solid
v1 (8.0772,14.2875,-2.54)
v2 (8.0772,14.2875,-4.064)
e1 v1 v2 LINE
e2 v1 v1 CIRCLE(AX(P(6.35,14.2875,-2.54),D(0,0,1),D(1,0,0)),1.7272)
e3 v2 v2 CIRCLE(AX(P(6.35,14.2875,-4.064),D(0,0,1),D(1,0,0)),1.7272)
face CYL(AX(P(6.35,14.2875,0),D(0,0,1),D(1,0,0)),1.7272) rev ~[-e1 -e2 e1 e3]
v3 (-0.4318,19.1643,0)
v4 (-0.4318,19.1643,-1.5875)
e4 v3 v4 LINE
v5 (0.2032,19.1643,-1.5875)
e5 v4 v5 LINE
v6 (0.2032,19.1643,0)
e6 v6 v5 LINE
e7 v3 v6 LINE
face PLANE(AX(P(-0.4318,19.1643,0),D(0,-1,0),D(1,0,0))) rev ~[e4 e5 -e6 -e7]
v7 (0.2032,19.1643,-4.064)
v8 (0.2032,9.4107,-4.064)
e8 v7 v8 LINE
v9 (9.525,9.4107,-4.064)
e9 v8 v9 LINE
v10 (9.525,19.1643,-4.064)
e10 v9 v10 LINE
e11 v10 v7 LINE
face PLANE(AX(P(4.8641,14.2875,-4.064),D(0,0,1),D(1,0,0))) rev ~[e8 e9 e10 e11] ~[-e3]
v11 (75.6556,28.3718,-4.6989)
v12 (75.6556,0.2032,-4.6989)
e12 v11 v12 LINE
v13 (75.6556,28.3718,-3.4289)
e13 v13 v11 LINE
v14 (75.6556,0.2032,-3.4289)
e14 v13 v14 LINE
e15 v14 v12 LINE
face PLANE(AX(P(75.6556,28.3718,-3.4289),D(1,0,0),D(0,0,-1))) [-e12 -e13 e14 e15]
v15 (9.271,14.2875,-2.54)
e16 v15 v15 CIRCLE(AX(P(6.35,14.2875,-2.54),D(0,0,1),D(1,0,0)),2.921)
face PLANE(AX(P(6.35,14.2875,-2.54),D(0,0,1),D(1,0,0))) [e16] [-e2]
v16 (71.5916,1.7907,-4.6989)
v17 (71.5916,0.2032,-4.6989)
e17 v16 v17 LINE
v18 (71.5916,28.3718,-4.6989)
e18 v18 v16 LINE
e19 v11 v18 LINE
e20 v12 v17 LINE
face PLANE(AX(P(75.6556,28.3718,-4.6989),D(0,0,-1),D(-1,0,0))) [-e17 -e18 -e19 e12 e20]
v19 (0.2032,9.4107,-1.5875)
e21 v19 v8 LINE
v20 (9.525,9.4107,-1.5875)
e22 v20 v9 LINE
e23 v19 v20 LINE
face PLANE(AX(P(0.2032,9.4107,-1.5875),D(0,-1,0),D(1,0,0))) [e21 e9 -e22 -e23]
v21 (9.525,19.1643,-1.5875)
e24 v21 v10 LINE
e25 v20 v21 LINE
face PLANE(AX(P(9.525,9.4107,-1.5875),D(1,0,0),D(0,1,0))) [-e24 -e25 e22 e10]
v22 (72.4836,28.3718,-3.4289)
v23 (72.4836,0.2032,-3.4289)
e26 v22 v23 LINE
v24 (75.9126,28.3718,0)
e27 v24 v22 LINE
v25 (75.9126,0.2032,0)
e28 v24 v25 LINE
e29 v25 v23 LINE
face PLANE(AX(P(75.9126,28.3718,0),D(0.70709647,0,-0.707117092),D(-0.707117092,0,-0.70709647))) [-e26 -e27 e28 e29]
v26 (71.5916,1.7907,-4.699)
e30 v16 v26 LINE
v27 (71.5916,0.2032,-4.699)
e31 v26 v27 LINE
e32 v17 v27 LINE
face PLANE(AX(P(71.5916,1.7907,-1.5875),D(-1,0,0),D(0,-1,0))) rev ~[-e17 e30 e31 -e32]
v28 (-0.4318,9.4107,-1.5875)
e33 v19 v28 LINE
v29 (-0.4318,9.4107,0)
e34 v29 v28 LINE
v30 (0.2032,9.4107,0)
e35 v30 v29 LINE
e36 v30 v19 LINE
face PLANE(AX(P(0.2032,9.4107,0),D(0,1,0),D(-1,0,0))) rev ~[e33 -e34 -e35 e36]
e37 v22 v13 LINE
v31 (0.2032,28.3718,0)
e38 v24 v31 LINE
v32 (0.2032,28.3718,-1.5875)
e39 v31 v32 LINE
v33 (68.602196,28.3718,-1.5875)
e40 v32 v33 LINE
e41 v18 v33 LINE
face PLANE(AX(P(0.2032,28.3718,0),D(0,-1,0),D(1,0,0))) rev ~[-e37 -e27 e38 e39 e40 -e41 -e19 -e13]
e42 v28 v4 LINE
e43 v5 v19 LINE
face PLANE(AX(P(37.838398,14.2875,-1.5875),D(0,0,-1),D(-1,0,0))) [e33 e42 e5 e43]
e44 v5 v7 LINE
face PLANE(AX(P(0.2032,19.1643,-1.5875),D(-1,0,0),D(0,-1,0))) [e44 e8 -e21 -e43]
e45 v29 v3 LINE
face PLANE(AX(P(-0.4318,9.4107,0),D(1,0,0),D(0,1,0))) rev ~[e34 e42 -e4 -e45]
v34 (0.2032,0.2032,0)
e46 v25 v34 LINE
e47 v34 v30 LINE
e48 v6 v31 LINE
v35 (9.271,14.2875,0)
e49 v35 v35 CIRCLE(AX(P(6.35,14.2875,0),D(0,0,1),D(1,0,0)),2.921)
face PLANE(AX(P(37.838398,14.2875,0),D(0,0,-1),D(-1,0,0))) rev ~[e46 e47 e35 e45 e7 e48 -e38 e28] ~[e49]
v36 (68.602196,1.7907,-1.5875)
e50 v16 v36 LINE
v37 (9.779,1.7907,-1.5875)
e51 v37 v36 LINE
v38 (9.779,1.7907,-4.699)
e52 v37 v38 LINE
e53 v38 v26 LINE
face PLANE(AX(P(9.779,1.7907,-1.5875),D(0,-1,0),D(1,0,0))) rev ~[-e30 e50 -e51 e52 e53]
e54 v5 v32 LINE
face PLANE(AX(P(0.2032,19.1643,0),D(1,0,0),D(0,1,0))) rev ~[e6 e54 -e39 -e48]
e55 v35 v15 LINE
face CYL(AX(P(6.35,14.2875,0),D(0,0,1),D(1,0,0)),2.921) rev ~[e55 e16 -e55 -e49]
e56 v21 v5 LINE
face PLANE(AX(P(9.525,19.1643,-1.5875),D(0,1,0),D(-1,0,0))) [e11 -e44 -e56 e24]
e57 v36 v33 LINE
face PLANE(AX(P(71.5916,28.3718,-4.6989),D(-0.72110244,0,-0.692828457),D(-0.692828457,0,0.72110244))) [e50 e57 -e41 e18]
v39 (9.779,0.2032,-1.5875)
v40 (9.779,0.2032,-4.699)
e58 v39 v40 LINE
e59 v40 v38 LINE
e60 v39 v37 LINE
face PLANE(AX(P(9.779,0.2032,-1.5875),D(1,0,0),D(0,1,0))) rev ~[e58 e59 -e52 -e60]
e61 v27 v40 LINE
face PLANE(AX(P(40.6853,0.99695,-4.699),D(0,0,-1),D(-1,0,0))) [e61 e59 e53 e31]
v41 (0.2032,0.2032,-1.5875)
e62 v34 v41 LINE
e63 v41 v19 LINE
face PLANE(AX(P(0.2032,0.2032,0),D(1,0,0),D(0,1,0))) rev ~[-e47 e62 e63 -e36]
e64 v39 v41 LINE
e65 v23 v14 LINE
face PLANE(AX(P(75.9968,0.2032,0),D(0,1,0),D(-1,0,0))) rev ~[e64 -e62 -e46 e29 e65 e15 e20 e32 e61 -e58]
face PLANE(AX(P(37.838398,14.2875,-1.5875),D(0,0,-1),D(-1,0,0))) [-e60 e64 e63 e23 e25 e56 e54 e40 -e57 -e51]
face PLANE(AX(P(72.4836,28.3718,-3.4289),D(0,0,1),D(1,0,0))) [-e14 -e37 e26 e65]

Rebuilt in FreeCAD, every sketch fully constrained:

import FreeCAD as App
import Part
import Sketcher

V = App.Vector
Q = App.Units.Quantity


def add_polygon(sketch, points):
    """Adds a closed chain of lines whose ends are joined by coincident constraints."""
    first, n = sketch.GeometryCount, len(points)
    for a, b in zip(points, points[1:] + points[:1]):
        sketch.addGeometry(Part.LineSegment(App.Vector(*a, 0), App.Vector(*b, 0)), False)
    for i in range(n):
        sketch.addConstraint(Sketcher.Constraint("Coincident", first + i, 2, first + (i + 1) % n, 1))

doc = App.newDocument("Part")
params = doc.addObject("Spreadsheet::Sheet", "Params")
for row, (alias, value) in enumerate([
    ("sketch1_width", "2.984 in"),
    ("sketch1_width2", "0.025 in"),
    ("sketch1_height", "1.109 in"),
    ("sketch1_height2", "0.384 in"),
    ("pad1_length", "0.0625 in"),
    ("pocket1_length", "1.109 in"),
    ("sketch3_width", "0.367 in"),
    ("sketch3_height", "0.384 in"),
    ("pad2_length", "0.0975 in"),
    ("sketch4_diameter", "0.136 in"),
    ("sketch5_diameter", "0.23 in"),
    ("pocket3_length", "0.1 in"),
    ("sketch6_width", "0.16 in"),
    ("sketch6_height", "0.05 in"),
    ("sketch6_height2", "0.0625 in"),
    ("pad3_length", "1.109 in"),
    ("sketch7_height", "0.0625 in"),
    ("pad4_length", "0.1225 in"),
], start=1):
    params.set(f"A{row}", alias)
    params.set(f"B{row}", "=" + value)
    params.setAlias(f"B{row}", alias)

body = doc.addObject("PartDesign::Body", "Body")

# Sketch on XY plane
sketch1 = doc.addObject("Sketcher::SketchObject", "Sketch")
body.addObject(sketch1)
sketch1.AttachmentSupport = (doc.XY_Plane, [""])
sketch1.MapMode = "FlatFace"
add_polygon(sketch1, [(0.2032, 0.2032), (75.9968, 0.2032), (75.9968, 28.3718), (0.2032, 28.3718), (0.2032, 19.1643), (-0.4318, 19.1643), (-0.4318, 9.4107), (0.2032, 9.4107)])  # lines 0-7
sketch1.addConstraint([
    Sketcher.Constraint("Horizontal", 0),
    Sketcher.Constraint("Vertical", 1),
    Sketcher.Constraint("Horizontal", 2),
    Sketcher.Constraint("Vertical", 3),
    Sketcher.Constraint("Horizontal", 4),
    Sketcher.Constraint("Vertical", 5),
    Sketcher.Constraint("Horizontal", 6),
    Sketcher.Constraint("Vertical", 7),
    Sketcher.Constraint("Vertical", 3, 2, 6, 2),
    Sketcher.Constraint("Equal", 3, 7),
    Sketcher.Constraint("DistanceX", 0, 1, 0, 2, Q("2.984 in")),
    Sketcher.Constraint("DistanceX", 4, 2, 4, 1, Q("0.025 in")),
    Sketcher.Constraint("DistanceY", 1, 1, 1, 2, Q("1.109 in")),
    Sketcher.Constraint("DistanceY", 5, 2, 5, 1, Q("0.384 in")),
    Sketcher.Constraint("DistanceX", -1, 1, 0, 2, Q("2.992 in")),
    Sketcher.Constraint("DistanceY", -1, 1, 0, 2, Q("0.008 in")),
])
sketch1.setExpression("Constraints[18]", "Params.sketch1_width")
sketch1.setExpression("Constraints[19]", "Params.sketch1_width2")
sketch1.setExpression("Constraints[20]", "Params.sketch1_height")
sketch1.setExpression("Constraints[21]", "Params.sketch1_height2")
pad1 = doc.addObject("PartDesign::Pad", "Pad")
body.addObject(pad1)
pad1.Profile = sketch1
pad1.setExpression("Length", "Params.pad1_length")
pad1.Reversed = True

# Sketch on XZ plane
sketch2 = doc.addObject("Sketcher::SketchObject", "Sketch001")
body.addObject(sketch2)
sketch2.AttachmentSupport = (doc.XZ_Plane, [""])
sketch2.MapMode = "FlatFace"
sketch2.AttachmentOffset = App.Placement(V(0, 0, -1.117 * 25.4), App.Rotation())
add_polygon(sketch2, [(76.962, -3.1749), (72.7376, -3.1749), (76.962, 1.0494)])  # lines 0-2
sketch2.addConstraint([
    Sketcher.Constraint("Horizontal", 0),
    Sketcher.Constraint("Vertical", 2),
    Sketcher.Constraint("Equal", 0, 2),
    Sketcher.Constraint("DistanceX", -1, 1, 1, 2, Q("3.03 in")),
    Sketcher.Constraint("DistanceY", 2, 2, 2, 1, Q("0.1663 in")),
    Sketcher.Constraint("DistanceY", 0, 2, -1, 1, Q("0.125 in")),
])
pocket1 = doc.addObject("PartDesign::Pocket", "Pocket")
body.addObject(pocket1)
pocket1.Profile = sketch2
pocket1.setExpression("Length", "Params.pocket1_length")
pocket1.Reversed = True

# Sketch on XY plane
sketch3 = doc.addObject("Sketcher::SketchObject", "Sketch002")
body.addObject(sketch3)
sketch3.AttachmentSupport = (doc.XY_Plane, [""])
sketch3.MapMode = "FlatFace"
sketch3.AttachmentOffset = App.Placement(V(0, 0, -0.0625 * 25.4), App.Rotation())
add_polygon(sketch3, [(0.2032, 19.1643), (9.525, 19.1643), (9.525, 9.4107), (0.2032, 9.4107)])  # lines 0-3
sketch3.addConstraint([
    Sketcher.Constraint("Horizontal", 0),
    Sketcher.Constraint("Vertical", 1),
    Sketcher.Constraint("Horizontal", 2),
    Sketcher.Constraint("Vertical", 3),
    Sketcher.Constraint("DistanceX", 0, 1, 0, 2, Q("0.367 in")),
    Sketcher.Constraint("DistanceY", 1, 2, 1, 1, Q("0.384 in")),
    Sketcher.Constraint("DistanceX", -1, 1, 0, 2, Q("0.375 in")),
    Sketcher.Constraint("DistanceY", -1, 1, 0, 2, Q("0.7545 in")),
])
sketch3.setExpression("Constraints[8]", "Params.sketch3_width")
sketch3.setExpression("Constraints[9]", "Params.sketch3_height")
pad2 = doc.addObject("PartDesign::Pad", "Pad001")
body.addObject(pad2)
pad2.Profile = sketch3
pad2.setExpression("Length", "Params.pad2_length")
pad2.Reversed = True

# Sketch on XY plane
sketch4 = doc.addObject("Sketcher::SketchObject", "Sketch003")
body.addObject(sketch4)
sketch4.AttachmentSupport = (doc.XY_Plane, [""])
sketch4.MapMode = "FlatFace"
sketch4.addGeometry(Part.Circle(V(6.35, 14.2875, 0), V(0, 0, 1), 1.7272), False)
sketch4.addConstraint([
    Sketcher.Constraint("Diameter", 0, Q("0.136 in")),
    Sketcher.Constraint("DistanceX", -1, 1, 0, 3, Q("0.25 in")),
    Sketcher.Constraint("DistanceY", -1, 1, 0, 3, Q("0.5625 in")),
])
sketch4.setExpression("Constraints[0]", "Params.sketch4_diameter")
pocket2 = doc.addObject("PartDesign::Pocket", "Pocket001")
body.addObject(pocket2)
pocket2.Profile = sketch4
pocket2.Type = "ThroughAll"

# Sketch on XY plane
sketch5 = doc.addObject("Sketcher::SketchObject", "Sketch004")
body.addObject(sketch5)
sketch5.AttachmentSupport = (doc.XY_Plane, [""])
sketch5.MapMode = "FlatFace"
sketch5.addGeometry(Part.Circle(V(6.35, 14.2875, 0), V(0, 0, 1), 2.921), False)
sketch5.addConstraint([
    Sketcher.Constraint("Diameter", 0, Q("0.23 in")),
    Sketcher.Constraint("DistanceX", -1, 1, 0, 3, Q("0.25 in")),
    Sketcher.Constraint("DistanceY", -1, 1, 0, 3, Q("0.5625 in")),
])
sketch5.setExpression("Constraints[0]", "Params.sketch5_diameter")
pocket3 = doc.addObject("PartDesign::Pocket", "Pocket002")
body.addObject(pocket3)
pocket3.Profile = sketch5
pocket3.setExpression("Length", "Params.pocket3_length")

# Sketch on XZ plane
sketch6 = doc.addObject("Sketcher::SketchObject", "Sketch005")
body.addObject(sketch6)
sketch6.AttachmentSupport = (doc.XZ_Plane, [""])
sketch6.MapMode = "FlatFace"
sketch6.AttachmentOffset = App.Placement(V(0, 0, -1.117 * 25.4), App.Rotation())
add_polygon(sketch6, [(75.6556, -4.6989), (71.5916, -4.6989), (68.6021, -1.5874), (68.6021, 0), (75.9126, 0), (72.4836, -3.4289), (75.6556, -3.4289)])  # lines 0-6
sketch6.addConstraint([
    Sketcher.Constraint("Horizontal", 0),
    Sketcher.Constraint("Vertical", 2),
    Sketcher.Constraint("Horizontal", 3),
    Sketcher.Constraint("Horizontal", 5),
    Sketcher.Constraint("Vertical", 6),
    Sketcher.Constraint("PointOnObject", 2, 2, -1),
    Sketcher.Constraint("Angle", 4, Q("-135.0008 deg")),
    Sketcher.Constraint("DistanceX", 0, 2, 0, 1, Q("0.16 in")),
    Sketcher.Constraint("DistanceY", 6, 2, 6, 1, Q("0.05 in")),
    Sketcher.Constraint("DistanceY", 2, 1, 2, 2, Q("0.0625 in")),
    Sketcher.Constraint("DistanceY", 0, 2, -1, 1, Q("0.185 in")),
    Sketcher.Constraint("DistanceX", 3, 1, 3, 2, 7.3105),
    Sketcher.Constraint("DistanceX", 5, 1, 5, 2, 3.172),
    Sketcher.Constraint("DistanceX", -1, 1, 0, 2, 71.5916),
])
sketch6.setExpression("Constraints[14]", "Params.sketch6_width")
sketch6.setExpression("Constraints[15]", "Params.sketch6_height")
sketch6.setExpression("Constraints[16]", "Params.sketch6_height2")
pad3 = doc.addObject("PartDesign::Pad", "Pad002")
body.addObject(pad3)
pad3.Profile = sketch6
pad3.setExpression("Length", "Params.pad3_length")

# Sketch on XY plane
sketch7 = doc.addObject("Sketcher::SketchObject", "Sketch006")
body.addObject(sketch7)
sketch7.AttachmentSupport = (doc.XY_Plane, [""])
sketch7.MapMode = "FlatFace"
sketch7.AttachmentOffset = App.Placement(V(0, 0, -0.0625 * 25.4), App.Rotation())
add_polygon(sketch7, [(9.779, 0.2032), (9.779, 1.7907), (71.5916, 1.7907), (71.5916, 0.2032)])  # lines 0-3
sketch7.addConstraint([
    Sketcher.Constraint("Vertical", 0),
    Sketcher.Constraint("Horizontal", 1),
    Sketcher.Constraint("Vertical", 2),
    Sketcher.Constraint("Horizontal", 3),
    Sketcher.Constraint("DistanceY", 0, 1, 0, 2, Q("0.0625 in")),
    Sketcher.Constraint("DistanceX", -1, 1, 0, 2, Q("0.385 in")),
    Sketcher.Constraint("DistanceY", -1, 1, 2, 2, Q("0.008 in")),
    Sketcher.Constraint("DistanceX", 1, 1, 1, 2, 61.8126),
])
sketch7.setExpression("Constraints[8]", "Params.sketch7_height")
pad4 = doc.addObject("PartDesign::Pad", "Pad003")
body.addObject(pad4)
pad4.Profile = sketch7
pad4.setExpression("Length", "Params.pad4_length")
pad4.Reversed = True

doc.recompute()
